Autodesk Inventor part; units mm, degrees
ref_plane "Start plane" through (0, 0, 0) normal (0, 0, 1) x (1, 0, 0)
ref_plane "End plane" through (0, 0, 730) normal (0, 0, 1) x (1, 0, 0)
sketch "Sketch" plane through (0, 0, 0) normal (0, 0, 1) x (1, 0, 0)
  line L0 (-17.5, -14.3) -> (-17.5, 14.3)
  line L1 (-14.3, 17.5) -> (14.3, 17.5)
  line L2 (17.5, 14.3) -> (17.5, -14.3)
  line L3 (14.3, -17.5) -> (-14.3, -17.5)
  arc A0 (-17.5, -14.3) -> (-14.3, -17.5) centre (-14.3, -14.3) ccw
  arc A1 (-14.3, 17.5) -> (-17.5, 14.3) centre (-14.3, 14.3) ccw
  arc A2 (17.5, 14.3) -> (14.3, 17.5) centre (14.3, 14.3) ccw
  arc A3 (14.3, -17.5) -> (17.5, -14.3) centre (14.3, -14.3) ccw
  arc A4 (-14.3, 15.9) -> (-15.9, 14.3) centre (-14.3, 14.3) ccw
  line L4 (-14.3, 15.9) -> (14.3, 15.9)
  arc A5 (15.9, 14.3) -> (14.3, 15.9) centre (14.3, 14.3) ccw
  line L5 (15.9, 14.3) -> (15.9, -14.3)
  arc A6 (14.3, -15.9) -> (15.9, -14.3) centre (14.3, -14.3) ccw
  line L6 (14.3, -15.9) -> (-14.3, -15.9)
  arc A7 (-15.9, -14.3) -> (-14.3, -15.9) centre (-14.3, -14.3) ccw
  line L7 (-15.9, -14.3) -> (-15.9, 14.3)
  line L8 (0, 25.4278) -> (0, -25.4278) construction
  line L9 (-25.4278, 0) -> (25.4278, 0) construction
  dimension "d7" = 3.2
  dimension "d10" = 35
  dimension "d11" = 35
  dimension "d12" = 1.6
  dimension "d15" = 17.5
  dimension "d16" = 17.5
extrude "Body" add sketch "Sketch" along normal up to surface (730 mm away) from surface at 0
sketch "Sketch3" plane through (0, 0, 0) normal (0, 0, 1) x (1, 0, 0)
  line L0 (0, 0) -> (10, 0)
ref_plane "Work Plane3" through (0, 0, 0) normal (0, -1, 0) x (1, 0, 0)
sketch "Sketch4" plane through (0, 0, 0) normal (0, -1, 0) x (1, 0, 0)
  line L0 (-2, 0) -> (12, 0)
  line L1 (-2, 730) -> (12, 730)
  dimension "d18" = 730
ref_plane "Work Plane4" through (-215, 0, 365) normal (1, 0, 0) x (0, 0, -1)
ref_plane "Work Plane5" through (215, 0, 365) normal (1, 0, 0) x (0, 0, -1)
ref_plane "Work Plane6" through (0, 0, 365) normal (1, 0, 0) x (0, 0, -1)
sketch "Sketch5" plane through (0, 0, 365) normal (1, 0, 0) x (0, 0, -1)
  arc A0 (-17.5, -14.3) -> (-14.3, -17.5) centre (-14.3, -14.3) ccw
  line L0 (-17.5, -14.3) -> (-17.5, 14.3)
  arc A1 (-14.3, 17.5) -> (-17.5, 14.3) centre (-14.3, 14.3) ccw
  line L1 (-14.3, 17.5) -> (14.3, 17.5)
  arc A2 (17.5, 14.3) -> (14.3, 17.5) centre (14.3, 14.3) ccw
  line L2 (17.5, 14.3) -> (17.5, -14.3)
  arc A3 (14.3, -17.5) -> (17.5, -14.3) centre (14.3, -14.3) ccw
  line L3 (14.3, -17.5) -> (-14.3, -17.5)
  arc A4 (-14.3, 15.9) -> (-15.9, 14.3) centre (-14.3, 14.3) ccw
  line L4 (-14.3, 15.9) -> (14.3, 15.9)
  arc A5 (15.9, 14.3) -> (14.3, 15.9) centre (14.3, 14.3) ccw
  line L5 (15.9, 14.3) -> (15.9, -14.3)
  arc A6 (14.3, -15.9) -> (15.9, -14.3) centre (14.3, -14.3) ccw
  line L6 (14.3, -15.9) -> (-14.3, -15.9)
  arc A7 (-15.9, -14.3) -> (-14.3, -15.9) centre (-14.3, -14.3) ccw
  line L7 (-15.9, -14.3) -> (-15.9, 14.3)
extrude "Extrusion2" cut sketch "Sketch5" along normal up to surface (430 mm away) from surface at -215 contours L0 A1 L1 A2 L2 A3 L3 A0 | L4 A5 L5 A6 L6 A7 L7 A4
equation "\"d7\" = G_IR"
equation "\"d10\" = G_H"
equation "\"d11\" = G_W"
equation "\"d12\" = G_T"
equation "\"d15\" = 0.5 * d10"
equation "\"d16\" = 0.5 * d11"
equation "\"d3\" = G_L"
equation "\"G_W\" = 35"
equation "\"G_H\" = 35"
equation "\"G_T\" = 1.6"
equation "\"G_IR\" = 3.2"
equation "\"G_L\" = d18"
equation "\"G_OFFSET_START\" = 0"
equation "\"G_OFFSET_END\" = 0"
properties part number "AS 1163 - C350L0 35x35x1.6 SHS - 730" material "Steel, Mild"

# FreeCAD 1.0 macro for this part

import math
import FreeCAD as App
import Part
import Sketcher
from FreeCAD import Vector

doc = App.newDocument("Part")
params = doc.addObject("Spreadsheet::Sheet", "Params")
for row, (alias, value) in enumerate([
    ("sketch1_radius", "3.2 mm"),
    ("sketch1_radius2", "1.6 mm"),
    ("pad1_length", "730 mm"),
    ("sketch2_radius", "3.2 mm"),
    ("sketch2_width", "28.6 mm"),
    ("pocket1_length", "430 mm"),
], start=1):
    params.set(f"A{row}", alias)
    params.set(f"B{row}", "=" + value)
    params.setAlias(f"B{row}", alias)

body = doc.addObject("PartDesign::Body", "Body")
body.AllowCompound = True

sketch1 = doc.addObject("Sketcher::SketchObject", "Sketch")
body.addObject(sketch1)
sketch1.AttachmentSupport = (doc.XY_Plane, [""])
sketch1.MapMode = "FlatFace"
sketch1.addGeometry(Part.LineSegment(Vector(-17.5, 14.3, 0), Vector(-17.5, -14.3, 0)), False)
sketch1.addGeometry(Part.ArcOfCircle(Part.Circle(Vector(-14.3, -14.3, 0), Vector(0, 0, 1), 3.2), math.radians(180), math.radians(270)), False)
sketch1.addGeometry(Part.LineSegment(Vector(-14.3, -17.5, 0), Vector(14.3, -17.5, 0)), False)
sketch1.addGeometry(Part.ArcOfCircle(Part.Circle(Vector(14.3, -14.3, 0), Vector(0, 0, 1), 3.2), math.radians(-90), math.radians(0)), False)
sketch1.addGeometry(Part.LineSegment(Vector(17.5, -14.3, 0), Vector(17.5, 14.3, 0)), False)
sketch1.addGeometry(Part.ArcOfCircle(Part.Circle(Vector(14.3, 14.3, 0), Vector(0, 0, 1), 3.2), math.radians(0), math.radians(90)), False)
sketch1.addGeometry(Part.LineSegment(Vector(14.3, 17.5, 0), Vector(-14.3, 17.5, 0)), False)
sketch1.addGeometry(Part.ArcOfCircle(Part.Circle(Vector(-14.3, 14.3, 0), Vector(0, 0, 1), 3.2), math.radians(90), math.radians(180)), False)
sketch1.addGeometry(Part.ArcOfCircle(Part.Circle(Vector(-14.3, 14.3, 0), Vector(0, 0, 1), 1.6), math.radians(90), math.radians(180)), False)
sketch1.addGeometry(Part.LineSegment(Vector(-14.3, 15.9, 0), Vector(14.3, 15.9, 0)), False)
sketch1.addGeometry(Part.ArcOfCircle(Part.Circle(Vector(14.3, 14.3, 0), Vector(0, 0, 1), 1.6), math.radians(0), math.radians(90)), False)
sketch1.addGeometry(Part.LineSegment(Vector(15.9, 14.3, 0), Vector(15.9, -14.3, 0)), False)
sketch1.addGeometry(Part.ArcOfCircle(Part.Circle(Vector(14.3, -14.3, 0), Vector(0, 0, 1), 1.6), math.radians(-90), math.radians(0)), False)
sketch1.addGeometry(Part.LineSegment(Vector(14.3, -15.9, 0), Vector(-14.3, -15.9, 0)), False)
sketch1.addGeometry(Part.ArcOfCircle(Part.Circle(Vector(-14.3, -14.3, 0), Vector(0, 0, 1), 1.6), math.radians(180), math.radians(270)), False)
sketch1.addGeometry(Part.LineSegment(Vector(-15.9, -14.3, 0), Vector(-15.9, 14.3, 0)), False)
sketch1.addConstraint(Sketcher.Constraint("Tangent", 0, 2, 1, 1))
sketch1.addConstraint(Sketcher.Constraint("Tangent", 1, 2, 2, 1))
sketch1.addConstraint(Sketcher.Constraint("Tangent", 2, 2, 3, 1))
sketch1.addConstraint(Sketcher.Constraint("Tangent", 3, 2, 4, 1))
sketch1.addConstraint(Sketcher.Constraint("Tangent", 4, 2, 5, 1))
sketch1.addConstraint(Sketcher.Constraint("Tangent", 5, 2, 6, 1))
sketch1.addConstraint(Sketcher.Constraint("Tangent", 6, 2, 7, 1))
sketch1.addConstraint(Sketcher.Constraint("Tangent", 7, 2, 0, 1))
sketch1.addConstraint(Sketcher.Constraint("Tangent", 8, 1, 9, 1))
sketch1.addConstraint(Sketcher.Constraint("Tangent", 9, 2, 10, 2))
sketch1.addConstraint(Sketcher.Constraint("Tangent", 10, 1, 11, 1))
sketch1.addConstraint(Sketcher.Constraint("Tangent", 11, 2, 12, 2))
sketch1.addConstraint(Sketcher.Constraint("Tangent", 12, 1, 13, 1))
sketch1.addConstraint(Sketcher.Constraint("Tangent", 13, 2, 14, 2))
sketch1.addConstraint(Sketcher.Constraint("Tangent", 14, 1, 15, 1))
sketch1.addConstraint(Sketcher.Constraint("Tangent", 15, 2, 8, 2))
sketch1.addConstraint(Sketcher.Constraint("Vertical", 0))
sketch1.addConstraint(Sketcher.Constraint("Horizontal", 2))
sketch1.addConstraint(Sketcher.Constraint("Vertical", 4))
sketch1.addConstraint(Sketcher.Constraint("Horizontal", 6))
sketch1.addConstraint(Sketcher.Constraint("Horizontal", 9))
sketch1.addConstraint(Sketcher.Constraint("Vertical", 11))
sketch1.addConstraint(Sketcher.Constraint("Horizontal", 13))
sketch1.addConstraint(Sketcher.Constraint("Vertical", 15))
sketch1.addConstraint(Sketcher.Constraint("Coincident", 8, 3, 7, 3))
sketch1.addConstraint(Sketcher.Constraint("Coincident", 10, 3, 5, 3))
sketch1.addConstraint(Sketcher.Constraint("Coincident", 12, 3, 3, 3))
sketch1.addConstraint(Sketcher.Constraint("Equal", 1, 3))
sketch1.addConstraint(Sketcher.Constraint("Equal", 3, 5))
sketch1.addConstraint(Sketcher.Constraint("Equal", 5, 7))
sketch1.addConstraint(Sketcher.Constraint("Equal", 12, 14))
sketch1.addConstraint(Sketcher.Constraint("Symmetric", 1, 3, 5, 3, -1, 1))
sketch1.addConstraint(Sketcher.Constraint("Equal", 13, 0))
sketch1.addConstraint(Sketcher.Constraint("Radius", 1, 3.2))
sketch1.addConstraint(Sketcher.Constraint("Radius", 8, 1.6))
sketch1.addConstraint(Sketcher.Constraint("DistanceX", 0, 2, -1, 1, 17.5))
sketch1.setExpression("Constraints[33]", "Params.sketch1_radius")
sketch1.setExpression("Constraints[34]", "Params.sketch1_radius2")
pad1 = doc.addObject("PartDesign::Pad", "Pad")
body.addObject(pad1)
pad1.Profile = sketch1
pad1.setExpression("Length", "Params.pad1_length")

sketch2 = doc.addObject("Sketcher::SketchObject", "Sketch001")
body.addObject(sketch2)
sketch2.AttachmentSupport = (doc.YZ_Plane, [""])
sketch2.MapMode = "FlatFace"
sketch2.AttachmentOffset = App.Placement(Vector(0, 0, -215), App.Rotation())
sketch2.addGeometry(Part.LineSegment(Vector(14.3, 382.5, 0), Vector(-14.3, 382.5, 0)), False)
sketch2.addGeometry(Part.ArcOfCircle(Part.Circle(Vector(-14.3, 379.3, 0), Vector(0, 0, 1), 3.2), math.radians(90), math.radians(180)), False)
sketch2.addGeometry(Part.LineSegment(Vector(-17.5, 379.3, 0), Vector(-17.5, 350.7, 0)), False)
sketch2.addGeometry(Part.ArcOfCircle(Part.Circle(Vector(-14.3, 350.7, 0), Vector(0, 0, 1), 3.2), math.radians(180), math.radians(270)), False)
sketch2.addGeometry(Part.LineSegment(Vector(-14.3, 347.5, 0), Vector(14.3, 347.5, 0)), False)
sketch2.addGeometry(Part.ArcOfCircle(Part.Circle(Vector(14.3, 350.7, 0), Vector(0, 0, 1), 3.2), math.radians(-90), math.radians(0)), False)
sketch2.addGeometry(Part.LineSegment(Vector(17.5, 350.7, 0), Vector(17.5, 379.3, 0)), False)
sketch2.addGeometry(Part.ArcOfCircle(Part.Circle(Vector(14.3, 379.3, 0), Vector(0, 0, 1), 3.2), math.radians(0), math.radians(90)), False)
sketch2.addConstraint(Sketcher.Constraint("Tangent", 0, 2, 1, 1))
sketch2.addConstraint(Sketcher.Constraint("Tangent", 1, 2, 2, 1))
sketch2.addConstraint(Sketcher.Constraint("Tangent", 2, 2, 3, 1))
sketch2.addConstraint(Sketcher.Constraint("Tangent", 3, 2, 4, 1))
sketch2.addConstraint(Sketcher.Constraint("Tangent", 4, 2, 5, 1))
sketch2.addConstraint(Sketcher.Constraint("Tangent", 5, 2, 6, 1))
sketch2.addConstraint(Sketcher.Constraint("Tangent", 6, 2, 7, 1))
sketch2.addConstraint(Sketcher.Constraint("Tangent", 7, 2, 0, 1))
sketch2.addConstraint(Sketcher.Constraint("Horizontal", 0))
sketch2.addConstraint(Sketcher.Constraint("Vertical", 2))
sketch2.addConstraint(Sketcher.Constraint("Horizontal", 4))
sketch2.addConstraint(Sketcher.Constraint("Vertical", 6))
sketch2.addConstraint(Sketcher.Constraint("Equal", 1, 3))
sketch2.addConstraint(Sketcher.Constraint("Equal", 3, 5))
sketch2.addConstraint(Sketcher.Constraint("Equal", 5, 7))
sketch2.addConstraint(Sketcher.Constraint("Equal", 4, 2))
sketch2.addConstraint(Sketcher.Constraint("Radius", 1, 3.2))
sketch2.addConstraint(Sketcher.Constraint("DistanceX", 0, 2, 0, 1, 28.6))
sketch2.addConstraint(Sketcher.Constraint("DistanceX", 1, 3, -1, 1, 14.3))
sketch2.addConstraint(Sketcher.Constraint("DistanceY", -1, 1, 1, 3, 379.3))
sketch2.setExpression("Constraints[16]", "Params.sketch2_radius")
sketch2.setExpression("Constraints[17]", "Params.sketch2_width")
pocket1 = doc.addObject("PartDesign::Pocket", "Pocket")
body.addObject(pocket1)
pocket1.Profile = sketch2
pocket1.setExpression("Length", "Params.pocket1_length")
pocket1.Reversed = True

doc.recompute()
